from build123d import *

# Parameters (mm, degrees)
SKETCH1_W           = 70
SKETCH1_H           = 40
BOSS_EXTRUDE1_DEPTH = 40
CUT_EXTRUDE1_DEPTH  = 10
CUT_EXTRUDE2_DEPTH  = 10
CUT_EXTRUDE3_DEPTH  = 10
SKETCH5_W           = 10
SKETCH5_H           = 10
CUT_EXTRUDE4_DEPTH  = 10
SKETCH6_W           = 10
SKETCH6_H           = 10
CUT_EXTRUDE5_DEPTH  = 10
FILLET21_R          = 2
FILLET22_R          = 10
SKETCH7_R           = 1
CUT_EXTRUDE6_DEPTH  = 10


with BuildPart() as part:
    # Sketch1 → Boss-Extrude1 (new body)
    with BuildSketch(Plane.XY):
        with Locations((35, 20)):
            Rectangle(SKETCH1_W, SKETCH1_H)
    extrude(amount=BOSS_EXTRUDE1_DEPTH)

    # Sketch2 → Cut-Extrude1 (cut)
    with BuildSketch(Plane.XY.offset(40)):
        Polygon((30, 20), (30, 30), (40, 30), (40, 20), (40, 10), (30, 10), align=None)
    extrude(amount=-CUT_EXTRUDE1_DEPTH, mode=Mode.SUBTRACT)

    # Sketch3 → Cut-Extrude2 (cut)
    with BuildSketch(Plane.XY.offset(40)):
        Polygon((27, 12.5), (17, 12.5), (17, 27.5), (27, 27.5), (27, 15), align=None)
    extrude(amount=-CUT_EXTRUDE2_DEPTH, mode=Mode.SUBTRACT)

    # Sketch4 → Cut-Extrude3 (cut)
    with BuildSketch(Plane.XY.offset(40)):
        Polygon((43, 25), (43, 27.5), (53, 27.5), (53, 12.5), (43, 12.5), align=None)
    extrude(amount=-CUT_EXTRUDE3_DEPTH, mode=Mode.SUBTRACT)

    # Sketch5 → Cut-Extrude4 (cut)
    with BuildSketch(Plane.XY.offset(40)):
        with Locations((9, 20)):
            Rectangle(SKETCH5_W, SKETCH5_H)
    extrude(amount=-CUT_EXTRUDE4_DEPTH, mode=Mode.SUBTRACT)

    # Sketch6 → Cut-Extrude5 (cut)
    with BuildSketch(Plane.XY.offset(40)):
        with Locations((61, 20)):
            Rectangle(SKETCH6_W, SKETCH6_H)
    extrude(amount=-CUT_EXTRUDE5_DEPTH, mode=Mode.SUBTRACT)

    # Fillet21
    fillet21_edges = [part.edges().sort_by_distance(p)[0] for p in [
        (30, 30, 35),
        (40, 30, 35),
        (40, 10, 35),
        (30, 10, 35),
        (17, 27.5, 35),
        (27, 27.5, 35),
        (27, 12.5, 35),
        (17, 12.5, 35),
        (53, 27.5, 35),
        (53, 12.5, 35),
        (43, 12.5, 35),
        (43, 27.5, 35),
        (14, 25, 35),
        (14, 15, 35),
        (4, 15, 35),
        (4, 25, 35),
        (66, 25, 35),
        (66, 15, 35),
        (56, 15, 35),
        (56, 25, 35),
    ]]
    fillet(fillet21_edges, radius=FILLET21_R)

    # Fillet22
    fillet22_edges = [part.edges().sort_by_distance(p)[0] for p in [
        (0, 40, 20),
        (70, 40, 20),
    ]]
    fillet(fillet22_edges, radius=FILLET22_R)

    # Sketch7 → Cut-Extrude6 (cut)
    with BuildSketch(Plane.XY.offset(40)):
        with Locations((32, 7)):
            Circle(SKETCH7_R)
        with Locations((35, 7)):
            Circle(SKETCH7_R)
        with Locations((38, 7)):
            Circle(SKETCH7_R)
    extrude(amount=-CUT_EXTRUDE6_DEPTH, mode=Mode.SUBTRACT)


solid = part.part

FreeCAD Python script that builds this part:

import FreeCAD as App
import Part
import Sketcher


def edges_at(feature, points):
    """Names of the edges that pass closest to the given points."""
    edges = feature.Shape.Edges
    near = lambda p: min(range(len(edges)), key=lambda i: edges[i].distToShape(Part.Vertex(*p))[0])
    return sorted({f"Edge{near(p) + 1}" for p in points})

doc = App.newDocument("Part")
params = doc.addObject("Spreadsheet::Sheet", "Params")
for row, (alias, value) in enumerate([
    ("sketch1_width", "70 mm"),
    ("sketch1_height", "40 mm"),
    ("pad1_length", "40 mm"),
    ("sketch2_width", "10 mm"),
    ("sketch2_height", "20 mm"),
    ("pocket1_length", "10 mm"),
    ("sketch3_width", "10 mm"),
    ("sketch3_height", "15 mm"),
    ("pocket2_length", "10 mm"),
    ("sketch4_width", "10 mm"),
    ("sketch4_height", "15 mm"),
    ("pocket3_length", "10 mm"),
    ("sketch5_width", "10 mm"),
    ("pocket4_length", "10 mm"),
    ("sketch6_width", "10 mm"),
    ("pocket5_length", "10 mm"),
    ("fillet_radius", "2 mm"),
    ("fillet2_radius", "10 mm"),
    ("sketch7_diameter", "2 mm"),
    ("pocket6_length", "10 mm"),
], start=1):
    params.set(f"A{row}", alias)
    params.set(f"B{row}", "=" + value)
    params.setAlias(f"B{row}", alias)

body = doc.addObject("PartDesign::Body", "Body")

# Sketch on XY plane
sketch1 = body.newObject("Sketcher::SketchObject", "Sketch")
sketch1.AttachmentSupport = (doc.getObject("XY_Plane"), [""])
sketch1.MapMode = "FlatFace"
sketch1.addGeometry([
    Part.LineSegment(App.Vector(0, 40, 0), App.Vector(0, 0, 0)),
    Part.LineSegment(App.Vector(0, 0, 0), App.Vector(70, 0, 0)),
    Part.LineSegment(App.Vector(70, 0, 0), App.Vector(70, 40, 0)),
    Part.LineSegment(App.Vector(70, 40, 0), App.Vector(0, 40, 0)),
], False)
sketch1.addConstraint([
    Sketcher.Constraint("Coincident", 0, 2, 1, 1),
    Sketcher.Constraint("Coincident", 1, 2, 2, 1),
    Sketcher.Constraint("Coincident", 2, 2, 3, 1),
    Sketcher.Constraint("Coincident", 3, 2, 0, 1),
    Sketcher.Constraint("Vertical", 0),
    Sketcher.Constraint("Horizontal", 1),
    Sketcher.Constraint("Vertical", 2),
    Sketcher.Constraint("Horizontal", 3),
    Sketcher.Constraint("Coincident", 0, 2, -1, 1),
    Sketcher.Constraint("DistanceX", 1, 1, 1, 2, 70.0),
    Sketcher.Constraint("DistanceY", 0, 2, 0, 1, 40.0),
])
sketch1.setExpression("Constraints[9]", "Params.sketch1_width")
sketch1.setExpression("Constraints[10]", "Params.sketch1_height")
pad1 = body.newObject("PartDesign::Pad", "Pad")
pad1.Profile = sketch1
pad1.setExpression("Length", "Params.pad1_length")

# Sketch on XY plane
sketch2 = body.newObject("Sketcher::SketchObject", "Sketch001")
sketch2.AttachmentSupport = (doc.getObject("XY_Plane"), [""])
sketch2.MapMode = "FlatFace"
sketch2.AttachmentOffset = App.Placement(App.Vector(0, 0, 40), App.Rotation())
sketch2.addGeometry([
    Part.LineSegment(App.Vector(30, 30, 0), App.Vector(30, 10, 0)),
    Part.LineSegment(App.Vector(30, 10, 0), App.Vector(40, 10, 0)),
    Part.LineSegment(App.Vector(40, 10, 0), App.Vector(40, 30, 0)),
    Part.LineSegment(App.Vector(40, 30, 0), App.Vector(30, 30, 0)),
], False)
sketch2.addConstraint([
    Sketcher.Constraint("Coincident", 0, 2, 1, 1),
    Sketcher.Constraint("Coincident", 1, 2, 2, 1),
    Sketcher.Constraint("Coincident", 2, 2, 3, 1),
    Sketcher.Constraint("Coincident", 3, 2, 0, 1),
    Sketcher.Constraint("Vertical", 0),
    Sketcher.Constraint("Horizontal", 1),
    Sketcher.Constraint("Vertical", 2),
    Sketcher.Constraint("Horizontal", 3),
    Sketcher.Constraint("DistanceX", 1, 1, 1, 2, 10.0),
    Sketcher.Constraint("DistanceY", 0, 2, 0, 1, 20.0),
    Sketcher.Constraint("DistanceX", -1, 1, 0, 2, 30.0),
    Sketcher.Constraint("DistanceY", -1, 1, 0, 2, 10.0),
])
sketch2.setExpression("Constraints[8]", "Params.sketch2_width")
sketch2.setExpression("Constraints[9]", "Params.sketch2_height")
pocket1 = body.newObject("PartDesign::Pocket", "Pocket")
pocket1.Profile = sketch2
pocket1.setExpression("Length", "Params.pocket1_length")

# Sketch on XY plane
sketch3 = body.newObject("Sketcher::SketchObject", "Sketch002")
sketch3.AttachmentSupport = (doc.getObject("XY_Plane"), [""])
sketch3.MapMode = "FlatFace"
sketch3.AttachmentOffset = App.Placement(App.Vector(0, 0, 40), App.Rotation())
sketch3.addGeometry([
    Part.LineSegment(App.Vector(17, 12.5, 0), App.Vector(27, 12.5, 0)),
    Part.LineSegment(App.Vector(27, 12.5, 0), App.Vector(27, 27.5, 0)),
    Part.LineSegment(App.Vector(27, 27.5, 0), App.Vector(17, 27.5, 0)),
    Part.LineSegment(App.Vector(17, 27.5, 0), App.Vector(17, 12.5, 0)),
], False)
sketch3.addConstraint([
    Sketcher.Constraint("Coincident", 0, 2, 1, 1),
    Sketcher.Constraint("Coincident", 1, 2, 2, 1),
    Sketcher.Constraint("Coincident", 2, 2, 3, 1),
    Sketcher.Constraint("Coincident", 3, 2, 0, 1),
    Sketcher.Constraint("Horizontal", 0),
    Sketcher.Constraint("Vertical", 1),
    Sketcher.Constraint("Horizontal", 2),
    Sketcher.Constraint("Vertical", 3),
    Sketcher.Constraint("DistanceX", 0, 1, 0, 2, 10.0),
    Sketcher.Constraint("DistanceY", 1, 1, 1, 2, 15.0),
    Sketcher.Constraint("DistanceX", -1, 1, 0, 2, 27.0),
    Sketcher.Constraint("DistanceY", -1, 1, 0, 2, 12.5),
])
sketch3.setExpression("Constraints[8]", "Params.sketch3_width")
sketch3.setExpression("Constraints[9]", "Params.sketch3_height")
pocket2 = body.newObject("PartDesign::Pocket", "Pocket001")
pocket2.Profile = sketch3
pocket2.setExpression("Length", "Params.pocket2_length")

# Sketch on XY plane
sketch4 = body.newObject("Sketcher::SketchObject", "Sketch003")
sketch4.AttachmentSupport = (doc.getObject("XY_Plane"), [""])
sketch4.MapMode = "FlatFace"
sketch4.AttachmentOffset = App.Placement(App.Vector(0, 0, 40), App.Rotation())
sketch4.addGeometry([
    Part.LineSegment(App.Vector(43, 27.5, 0), App.Vector(43, 12.5, 0)),
    Part.LineSegment(App.Vector(43, 12.5, 0), App.Vector(53, 12.5, 0)),
    Part.LineSegment(App.Vector(53, 12.5, 0), App.Vector(53, 27.5, 0)),
    Part.LineSegment(App.Vector(53, 27.5, 0), App.Vector(43, 27.5, 0)),
], False)
sketch4.addConstraint([
    Sketcher.Constraint("Coincident", 0, 2, 1, 1),
    Sketcher.Constraint("Coincident", 1, 2, 2, 1),
    Sketcher.Constraint("Coincident", 2, 2, 3, 1),
    Sketcher.Constraint("Coincident", 3, 2, 0, 1),
    Sketcher.Constraint("Vertical", 0),
    Sketcher.Constraint("Horizontal", 1),
    Sketcher.Constraint("Vertical", 2),
    Sketcher.Constraint("Horizontal", 3),
    Sketcher.Constraint("DistanceX", 1, 1, 1, 2, 10.0),
    Sketcher.Constraint("DistanceY", 0, 2, 0, 1, 15.0),
    Sketcher.Constraint("DistanceX", -1, 1, 0, 2, 43.0),
    Sketcher.Constraint("DistanceY", -1, 1, 0, 2, 12.5),
])
sketch4.setExpression("Constraints[8]", "Params.sketch4_width")
sketch4.setExpression("Constraints[9]", "Params.sketch4_height")
pocket3 = body.newObject("PartDesign::Pocket", "Pocket002")
pocket3.Profile = sketch4
pocket3.setExpression("Length", "Params.pocket3_length")

# Sketch on XY plane
sketch5 = body.newObject("Sketcher::SketchObject", "Sketch004")
sketch5.AttachmentSupport = (doc.getObject("XY_Plane"), [""])
sketch5.MapMode = "FlatFace"
sketch5.AttachmentOffset = App.Placement(App.Vector(0, 0, 40), App.Rotation())
sketch5.addGeometry([
    Part.LineSegment(App.Vector(4, 25, 0), App.Vector(4, 15, 0)),
    Part.LineSegment(App.Vector(4, 15, 0), App.Vector(14, 15, 0)),
    Part.LineSegment(App.Vector(14, 15, 0), App.Vector(14, 25, 0)),
    Part.LineSegment(App.Vector(14, 25, 0), App.Vector(4, 25, 0)),
], False)
sketch5.addConstraint([
    Sketcher.Constraint("Coincident", 0, 2, 1, 1),
    Sketcher.Constraint("Coincident", 1, 2, 2, 1),
    Sketcher.Constraint("Coincident", 2, 2, 3, 1),
    Sketcher.Constraint("Coincident", 3, 2, 0, 1),
    Sketcher.Constraint("Vertical", 0),
    Sketcher.Constraint("Horizontal", 1),
    Sketcher.Constraint("Vertical", 2),
    Sketcher.Constraint("Horizontal", 3),
    Sketcher.Constraint("Equal", 3, 0),
    Sketcher.Constraint("DistanceX", 1, 1, 1, 2, 10.0),
    Sketcher.Constraint("DistanceX", -1, 1, 0, 2, 4.0),
    Sketcher.Constraint("DistanceY", -1, 1, 0, 2, 15.0),
])
sketch5.setExpression("Constraints[9]", "Params.sketch5_width")
pocket4 = body.newObject("PartDesign::Pocket", "Pocket003")
pocket4.Profile = sketch5
pocket4.setExpression("Length", "Params.pocket4_length")

# Sketch on XY plane
sketch6 = body.newObject("Sketcher::SketchObject", "Sketch005")
sketch6.AttachmentSupport = (doc.getObject("XY_Plane"), [""])
sketch6.MapMode = "FlatFace"
sketch6.AttachmentOffset = App.Placement(App.Vector(0, 0, 40), App.Rotation())
sketch6.addGeometry([
    Part.LineSegment(App.Vector(56, 25, 0), App.Vector(56, 15, 0)),
    Part.LineSegment(App.Vector(56, 15, 0), App.Vector(66, 15, 0)),
    Part.LineSegment(App.Vector(66, 15, 0), App.Vector(66, 25, 0)),
    Part.LineSegment(App.Vector(66, 25, 0), App.Vector(56, 25, 0)),
], False)
sketch6.addConstraint([
    Sketcher.Constraint("Coincident", 0, 2, 1, 1),
    Sketcher.Constraint("Coincident", 1, 2, 2, 1),
    Sketcher.Constraint("Coincident", 2, 2, 3, 1),
    Sketcher.Constraint("Coincident", 3, 2, 0, 1),
    Sketcher.Constraint("Vertical", 0),
    Sketcher.Constraint("Horizontal", 1),
    Sketcher.Constraint("Vertical", 2),
    Sketcher.Constraint("Horizontal", 3),
    Sketcher.Constraint("Equal", 3, 0),
    Sketcher.Constraint("DistanceX", 1, 1, 1, 2, 10.0),
    Sketcher.Constraint("DistanceX", -1, 1, 0, 2, 56.0),
    Sketcher.Constraint("DistanceY", -1, 1, 0, 2, 15.0),
])
sketch6.setExpression("Constraints[9]", "Params.sketch6_width")
pocket5 = body.newObject("PartDesign::Pocket", "Pocket004")
pocket5.Profile = sketch6
pocket5.setExpression("Length", "Params.pocket5_length")
doc.recompute()

fillet = body.newObject("PartDesign::Fillet", "Fillet")
fillet.Base = (pocket5, edges_at(pocket5, [
    (30, 30, 35),
    (40, 30, 35),
    (40, 10, 35),
    (30, 10, 35),
    (17, 27.5, 35),
    (27, 27.5, 35),
    (27, 12.5, 35),
    (17, 12.5, 35),
    (53, 27.5, 35),
    (53, 12.5, 35),
    (43, 12.5, 35),
    (43, 27.5, 35),
    (14, 25, 35),
    (14, 15, 35),
    (4, 15, 35),
    (4, 25, 35),
    (66, 25, 35),
    (66, 15, 35),
    (56, 15, 35),
    (56, 25, 35),
]))
fillet.setExpression("Radius", "Params.fillet_radius")
doc.recompute()

fillet2 = body.newObject("PartDesign::Fillet", "Fillet001")
fillet2.Base = (fillet, edges_at(fillet, [(0, 40, 20), (70, 40, 20)]))
fillet2.setExpression("Radius", "Params.fillet2_radius")

# Sketch on XY plane
sketch7 = body.newObject("Sketcher::SketchObject", "Sketch006")
sketch7.AttachmentSupport = (doc.getObject("XY_Plane"), [""])
sketch7.MapMode = "FlatFace"
sketch7.AttachmentOffset = App.Placement(App.Vector(0, 0, 40), App.Rotation())
sketch7.addGeometry([
    Part.Circle(App.Vector(32, 7, 0), App.Vector(0, 0, 1), 1),
    Part.Circle(App.Vector(35, 7, 0), App.Vector(0, 0, 1), 1),
    Part.Circle(App.Vector(38, 7, 0), App.Vector(0, 0, 1), 1),
], False)
sketch7.addConstraint([
    Sketcher.Constraint("Equal", 0, 1),
    Sketcher.Constraint("Equal", 1, 2),
    Sketcher.Constraint("Horizontal", 0, 3, 1, 3),
    Sketcher.Constraint("Horizontal", 1, 3, 2, 3),
    Sketcher.Constraint("Diameter", 0, 2.0),
    Sketcher.Constraint("DistanceX", -1, 1, 0, 3, 32.0),
    Sketcher.Constraint("DistanceY", -1, 1, 0, 3, 7.0),
    Sketcher.Constraint("DistanceX", -1, 1, 1, 3, 35.0),
    Sketcher.Constraint("DistanceX", -1, 1, 2, 3, 38.0),
])
sketch7.setExpression("Constraints[4]", "Params.sketch7_diameter")
pocket6 = body.newObject("PartDesign::Pocket", "Pocket005")
pocket6.Profile = sketch7
pocket6.setExpression("Length", "Params.pocket6_length")

doc.recompute()
